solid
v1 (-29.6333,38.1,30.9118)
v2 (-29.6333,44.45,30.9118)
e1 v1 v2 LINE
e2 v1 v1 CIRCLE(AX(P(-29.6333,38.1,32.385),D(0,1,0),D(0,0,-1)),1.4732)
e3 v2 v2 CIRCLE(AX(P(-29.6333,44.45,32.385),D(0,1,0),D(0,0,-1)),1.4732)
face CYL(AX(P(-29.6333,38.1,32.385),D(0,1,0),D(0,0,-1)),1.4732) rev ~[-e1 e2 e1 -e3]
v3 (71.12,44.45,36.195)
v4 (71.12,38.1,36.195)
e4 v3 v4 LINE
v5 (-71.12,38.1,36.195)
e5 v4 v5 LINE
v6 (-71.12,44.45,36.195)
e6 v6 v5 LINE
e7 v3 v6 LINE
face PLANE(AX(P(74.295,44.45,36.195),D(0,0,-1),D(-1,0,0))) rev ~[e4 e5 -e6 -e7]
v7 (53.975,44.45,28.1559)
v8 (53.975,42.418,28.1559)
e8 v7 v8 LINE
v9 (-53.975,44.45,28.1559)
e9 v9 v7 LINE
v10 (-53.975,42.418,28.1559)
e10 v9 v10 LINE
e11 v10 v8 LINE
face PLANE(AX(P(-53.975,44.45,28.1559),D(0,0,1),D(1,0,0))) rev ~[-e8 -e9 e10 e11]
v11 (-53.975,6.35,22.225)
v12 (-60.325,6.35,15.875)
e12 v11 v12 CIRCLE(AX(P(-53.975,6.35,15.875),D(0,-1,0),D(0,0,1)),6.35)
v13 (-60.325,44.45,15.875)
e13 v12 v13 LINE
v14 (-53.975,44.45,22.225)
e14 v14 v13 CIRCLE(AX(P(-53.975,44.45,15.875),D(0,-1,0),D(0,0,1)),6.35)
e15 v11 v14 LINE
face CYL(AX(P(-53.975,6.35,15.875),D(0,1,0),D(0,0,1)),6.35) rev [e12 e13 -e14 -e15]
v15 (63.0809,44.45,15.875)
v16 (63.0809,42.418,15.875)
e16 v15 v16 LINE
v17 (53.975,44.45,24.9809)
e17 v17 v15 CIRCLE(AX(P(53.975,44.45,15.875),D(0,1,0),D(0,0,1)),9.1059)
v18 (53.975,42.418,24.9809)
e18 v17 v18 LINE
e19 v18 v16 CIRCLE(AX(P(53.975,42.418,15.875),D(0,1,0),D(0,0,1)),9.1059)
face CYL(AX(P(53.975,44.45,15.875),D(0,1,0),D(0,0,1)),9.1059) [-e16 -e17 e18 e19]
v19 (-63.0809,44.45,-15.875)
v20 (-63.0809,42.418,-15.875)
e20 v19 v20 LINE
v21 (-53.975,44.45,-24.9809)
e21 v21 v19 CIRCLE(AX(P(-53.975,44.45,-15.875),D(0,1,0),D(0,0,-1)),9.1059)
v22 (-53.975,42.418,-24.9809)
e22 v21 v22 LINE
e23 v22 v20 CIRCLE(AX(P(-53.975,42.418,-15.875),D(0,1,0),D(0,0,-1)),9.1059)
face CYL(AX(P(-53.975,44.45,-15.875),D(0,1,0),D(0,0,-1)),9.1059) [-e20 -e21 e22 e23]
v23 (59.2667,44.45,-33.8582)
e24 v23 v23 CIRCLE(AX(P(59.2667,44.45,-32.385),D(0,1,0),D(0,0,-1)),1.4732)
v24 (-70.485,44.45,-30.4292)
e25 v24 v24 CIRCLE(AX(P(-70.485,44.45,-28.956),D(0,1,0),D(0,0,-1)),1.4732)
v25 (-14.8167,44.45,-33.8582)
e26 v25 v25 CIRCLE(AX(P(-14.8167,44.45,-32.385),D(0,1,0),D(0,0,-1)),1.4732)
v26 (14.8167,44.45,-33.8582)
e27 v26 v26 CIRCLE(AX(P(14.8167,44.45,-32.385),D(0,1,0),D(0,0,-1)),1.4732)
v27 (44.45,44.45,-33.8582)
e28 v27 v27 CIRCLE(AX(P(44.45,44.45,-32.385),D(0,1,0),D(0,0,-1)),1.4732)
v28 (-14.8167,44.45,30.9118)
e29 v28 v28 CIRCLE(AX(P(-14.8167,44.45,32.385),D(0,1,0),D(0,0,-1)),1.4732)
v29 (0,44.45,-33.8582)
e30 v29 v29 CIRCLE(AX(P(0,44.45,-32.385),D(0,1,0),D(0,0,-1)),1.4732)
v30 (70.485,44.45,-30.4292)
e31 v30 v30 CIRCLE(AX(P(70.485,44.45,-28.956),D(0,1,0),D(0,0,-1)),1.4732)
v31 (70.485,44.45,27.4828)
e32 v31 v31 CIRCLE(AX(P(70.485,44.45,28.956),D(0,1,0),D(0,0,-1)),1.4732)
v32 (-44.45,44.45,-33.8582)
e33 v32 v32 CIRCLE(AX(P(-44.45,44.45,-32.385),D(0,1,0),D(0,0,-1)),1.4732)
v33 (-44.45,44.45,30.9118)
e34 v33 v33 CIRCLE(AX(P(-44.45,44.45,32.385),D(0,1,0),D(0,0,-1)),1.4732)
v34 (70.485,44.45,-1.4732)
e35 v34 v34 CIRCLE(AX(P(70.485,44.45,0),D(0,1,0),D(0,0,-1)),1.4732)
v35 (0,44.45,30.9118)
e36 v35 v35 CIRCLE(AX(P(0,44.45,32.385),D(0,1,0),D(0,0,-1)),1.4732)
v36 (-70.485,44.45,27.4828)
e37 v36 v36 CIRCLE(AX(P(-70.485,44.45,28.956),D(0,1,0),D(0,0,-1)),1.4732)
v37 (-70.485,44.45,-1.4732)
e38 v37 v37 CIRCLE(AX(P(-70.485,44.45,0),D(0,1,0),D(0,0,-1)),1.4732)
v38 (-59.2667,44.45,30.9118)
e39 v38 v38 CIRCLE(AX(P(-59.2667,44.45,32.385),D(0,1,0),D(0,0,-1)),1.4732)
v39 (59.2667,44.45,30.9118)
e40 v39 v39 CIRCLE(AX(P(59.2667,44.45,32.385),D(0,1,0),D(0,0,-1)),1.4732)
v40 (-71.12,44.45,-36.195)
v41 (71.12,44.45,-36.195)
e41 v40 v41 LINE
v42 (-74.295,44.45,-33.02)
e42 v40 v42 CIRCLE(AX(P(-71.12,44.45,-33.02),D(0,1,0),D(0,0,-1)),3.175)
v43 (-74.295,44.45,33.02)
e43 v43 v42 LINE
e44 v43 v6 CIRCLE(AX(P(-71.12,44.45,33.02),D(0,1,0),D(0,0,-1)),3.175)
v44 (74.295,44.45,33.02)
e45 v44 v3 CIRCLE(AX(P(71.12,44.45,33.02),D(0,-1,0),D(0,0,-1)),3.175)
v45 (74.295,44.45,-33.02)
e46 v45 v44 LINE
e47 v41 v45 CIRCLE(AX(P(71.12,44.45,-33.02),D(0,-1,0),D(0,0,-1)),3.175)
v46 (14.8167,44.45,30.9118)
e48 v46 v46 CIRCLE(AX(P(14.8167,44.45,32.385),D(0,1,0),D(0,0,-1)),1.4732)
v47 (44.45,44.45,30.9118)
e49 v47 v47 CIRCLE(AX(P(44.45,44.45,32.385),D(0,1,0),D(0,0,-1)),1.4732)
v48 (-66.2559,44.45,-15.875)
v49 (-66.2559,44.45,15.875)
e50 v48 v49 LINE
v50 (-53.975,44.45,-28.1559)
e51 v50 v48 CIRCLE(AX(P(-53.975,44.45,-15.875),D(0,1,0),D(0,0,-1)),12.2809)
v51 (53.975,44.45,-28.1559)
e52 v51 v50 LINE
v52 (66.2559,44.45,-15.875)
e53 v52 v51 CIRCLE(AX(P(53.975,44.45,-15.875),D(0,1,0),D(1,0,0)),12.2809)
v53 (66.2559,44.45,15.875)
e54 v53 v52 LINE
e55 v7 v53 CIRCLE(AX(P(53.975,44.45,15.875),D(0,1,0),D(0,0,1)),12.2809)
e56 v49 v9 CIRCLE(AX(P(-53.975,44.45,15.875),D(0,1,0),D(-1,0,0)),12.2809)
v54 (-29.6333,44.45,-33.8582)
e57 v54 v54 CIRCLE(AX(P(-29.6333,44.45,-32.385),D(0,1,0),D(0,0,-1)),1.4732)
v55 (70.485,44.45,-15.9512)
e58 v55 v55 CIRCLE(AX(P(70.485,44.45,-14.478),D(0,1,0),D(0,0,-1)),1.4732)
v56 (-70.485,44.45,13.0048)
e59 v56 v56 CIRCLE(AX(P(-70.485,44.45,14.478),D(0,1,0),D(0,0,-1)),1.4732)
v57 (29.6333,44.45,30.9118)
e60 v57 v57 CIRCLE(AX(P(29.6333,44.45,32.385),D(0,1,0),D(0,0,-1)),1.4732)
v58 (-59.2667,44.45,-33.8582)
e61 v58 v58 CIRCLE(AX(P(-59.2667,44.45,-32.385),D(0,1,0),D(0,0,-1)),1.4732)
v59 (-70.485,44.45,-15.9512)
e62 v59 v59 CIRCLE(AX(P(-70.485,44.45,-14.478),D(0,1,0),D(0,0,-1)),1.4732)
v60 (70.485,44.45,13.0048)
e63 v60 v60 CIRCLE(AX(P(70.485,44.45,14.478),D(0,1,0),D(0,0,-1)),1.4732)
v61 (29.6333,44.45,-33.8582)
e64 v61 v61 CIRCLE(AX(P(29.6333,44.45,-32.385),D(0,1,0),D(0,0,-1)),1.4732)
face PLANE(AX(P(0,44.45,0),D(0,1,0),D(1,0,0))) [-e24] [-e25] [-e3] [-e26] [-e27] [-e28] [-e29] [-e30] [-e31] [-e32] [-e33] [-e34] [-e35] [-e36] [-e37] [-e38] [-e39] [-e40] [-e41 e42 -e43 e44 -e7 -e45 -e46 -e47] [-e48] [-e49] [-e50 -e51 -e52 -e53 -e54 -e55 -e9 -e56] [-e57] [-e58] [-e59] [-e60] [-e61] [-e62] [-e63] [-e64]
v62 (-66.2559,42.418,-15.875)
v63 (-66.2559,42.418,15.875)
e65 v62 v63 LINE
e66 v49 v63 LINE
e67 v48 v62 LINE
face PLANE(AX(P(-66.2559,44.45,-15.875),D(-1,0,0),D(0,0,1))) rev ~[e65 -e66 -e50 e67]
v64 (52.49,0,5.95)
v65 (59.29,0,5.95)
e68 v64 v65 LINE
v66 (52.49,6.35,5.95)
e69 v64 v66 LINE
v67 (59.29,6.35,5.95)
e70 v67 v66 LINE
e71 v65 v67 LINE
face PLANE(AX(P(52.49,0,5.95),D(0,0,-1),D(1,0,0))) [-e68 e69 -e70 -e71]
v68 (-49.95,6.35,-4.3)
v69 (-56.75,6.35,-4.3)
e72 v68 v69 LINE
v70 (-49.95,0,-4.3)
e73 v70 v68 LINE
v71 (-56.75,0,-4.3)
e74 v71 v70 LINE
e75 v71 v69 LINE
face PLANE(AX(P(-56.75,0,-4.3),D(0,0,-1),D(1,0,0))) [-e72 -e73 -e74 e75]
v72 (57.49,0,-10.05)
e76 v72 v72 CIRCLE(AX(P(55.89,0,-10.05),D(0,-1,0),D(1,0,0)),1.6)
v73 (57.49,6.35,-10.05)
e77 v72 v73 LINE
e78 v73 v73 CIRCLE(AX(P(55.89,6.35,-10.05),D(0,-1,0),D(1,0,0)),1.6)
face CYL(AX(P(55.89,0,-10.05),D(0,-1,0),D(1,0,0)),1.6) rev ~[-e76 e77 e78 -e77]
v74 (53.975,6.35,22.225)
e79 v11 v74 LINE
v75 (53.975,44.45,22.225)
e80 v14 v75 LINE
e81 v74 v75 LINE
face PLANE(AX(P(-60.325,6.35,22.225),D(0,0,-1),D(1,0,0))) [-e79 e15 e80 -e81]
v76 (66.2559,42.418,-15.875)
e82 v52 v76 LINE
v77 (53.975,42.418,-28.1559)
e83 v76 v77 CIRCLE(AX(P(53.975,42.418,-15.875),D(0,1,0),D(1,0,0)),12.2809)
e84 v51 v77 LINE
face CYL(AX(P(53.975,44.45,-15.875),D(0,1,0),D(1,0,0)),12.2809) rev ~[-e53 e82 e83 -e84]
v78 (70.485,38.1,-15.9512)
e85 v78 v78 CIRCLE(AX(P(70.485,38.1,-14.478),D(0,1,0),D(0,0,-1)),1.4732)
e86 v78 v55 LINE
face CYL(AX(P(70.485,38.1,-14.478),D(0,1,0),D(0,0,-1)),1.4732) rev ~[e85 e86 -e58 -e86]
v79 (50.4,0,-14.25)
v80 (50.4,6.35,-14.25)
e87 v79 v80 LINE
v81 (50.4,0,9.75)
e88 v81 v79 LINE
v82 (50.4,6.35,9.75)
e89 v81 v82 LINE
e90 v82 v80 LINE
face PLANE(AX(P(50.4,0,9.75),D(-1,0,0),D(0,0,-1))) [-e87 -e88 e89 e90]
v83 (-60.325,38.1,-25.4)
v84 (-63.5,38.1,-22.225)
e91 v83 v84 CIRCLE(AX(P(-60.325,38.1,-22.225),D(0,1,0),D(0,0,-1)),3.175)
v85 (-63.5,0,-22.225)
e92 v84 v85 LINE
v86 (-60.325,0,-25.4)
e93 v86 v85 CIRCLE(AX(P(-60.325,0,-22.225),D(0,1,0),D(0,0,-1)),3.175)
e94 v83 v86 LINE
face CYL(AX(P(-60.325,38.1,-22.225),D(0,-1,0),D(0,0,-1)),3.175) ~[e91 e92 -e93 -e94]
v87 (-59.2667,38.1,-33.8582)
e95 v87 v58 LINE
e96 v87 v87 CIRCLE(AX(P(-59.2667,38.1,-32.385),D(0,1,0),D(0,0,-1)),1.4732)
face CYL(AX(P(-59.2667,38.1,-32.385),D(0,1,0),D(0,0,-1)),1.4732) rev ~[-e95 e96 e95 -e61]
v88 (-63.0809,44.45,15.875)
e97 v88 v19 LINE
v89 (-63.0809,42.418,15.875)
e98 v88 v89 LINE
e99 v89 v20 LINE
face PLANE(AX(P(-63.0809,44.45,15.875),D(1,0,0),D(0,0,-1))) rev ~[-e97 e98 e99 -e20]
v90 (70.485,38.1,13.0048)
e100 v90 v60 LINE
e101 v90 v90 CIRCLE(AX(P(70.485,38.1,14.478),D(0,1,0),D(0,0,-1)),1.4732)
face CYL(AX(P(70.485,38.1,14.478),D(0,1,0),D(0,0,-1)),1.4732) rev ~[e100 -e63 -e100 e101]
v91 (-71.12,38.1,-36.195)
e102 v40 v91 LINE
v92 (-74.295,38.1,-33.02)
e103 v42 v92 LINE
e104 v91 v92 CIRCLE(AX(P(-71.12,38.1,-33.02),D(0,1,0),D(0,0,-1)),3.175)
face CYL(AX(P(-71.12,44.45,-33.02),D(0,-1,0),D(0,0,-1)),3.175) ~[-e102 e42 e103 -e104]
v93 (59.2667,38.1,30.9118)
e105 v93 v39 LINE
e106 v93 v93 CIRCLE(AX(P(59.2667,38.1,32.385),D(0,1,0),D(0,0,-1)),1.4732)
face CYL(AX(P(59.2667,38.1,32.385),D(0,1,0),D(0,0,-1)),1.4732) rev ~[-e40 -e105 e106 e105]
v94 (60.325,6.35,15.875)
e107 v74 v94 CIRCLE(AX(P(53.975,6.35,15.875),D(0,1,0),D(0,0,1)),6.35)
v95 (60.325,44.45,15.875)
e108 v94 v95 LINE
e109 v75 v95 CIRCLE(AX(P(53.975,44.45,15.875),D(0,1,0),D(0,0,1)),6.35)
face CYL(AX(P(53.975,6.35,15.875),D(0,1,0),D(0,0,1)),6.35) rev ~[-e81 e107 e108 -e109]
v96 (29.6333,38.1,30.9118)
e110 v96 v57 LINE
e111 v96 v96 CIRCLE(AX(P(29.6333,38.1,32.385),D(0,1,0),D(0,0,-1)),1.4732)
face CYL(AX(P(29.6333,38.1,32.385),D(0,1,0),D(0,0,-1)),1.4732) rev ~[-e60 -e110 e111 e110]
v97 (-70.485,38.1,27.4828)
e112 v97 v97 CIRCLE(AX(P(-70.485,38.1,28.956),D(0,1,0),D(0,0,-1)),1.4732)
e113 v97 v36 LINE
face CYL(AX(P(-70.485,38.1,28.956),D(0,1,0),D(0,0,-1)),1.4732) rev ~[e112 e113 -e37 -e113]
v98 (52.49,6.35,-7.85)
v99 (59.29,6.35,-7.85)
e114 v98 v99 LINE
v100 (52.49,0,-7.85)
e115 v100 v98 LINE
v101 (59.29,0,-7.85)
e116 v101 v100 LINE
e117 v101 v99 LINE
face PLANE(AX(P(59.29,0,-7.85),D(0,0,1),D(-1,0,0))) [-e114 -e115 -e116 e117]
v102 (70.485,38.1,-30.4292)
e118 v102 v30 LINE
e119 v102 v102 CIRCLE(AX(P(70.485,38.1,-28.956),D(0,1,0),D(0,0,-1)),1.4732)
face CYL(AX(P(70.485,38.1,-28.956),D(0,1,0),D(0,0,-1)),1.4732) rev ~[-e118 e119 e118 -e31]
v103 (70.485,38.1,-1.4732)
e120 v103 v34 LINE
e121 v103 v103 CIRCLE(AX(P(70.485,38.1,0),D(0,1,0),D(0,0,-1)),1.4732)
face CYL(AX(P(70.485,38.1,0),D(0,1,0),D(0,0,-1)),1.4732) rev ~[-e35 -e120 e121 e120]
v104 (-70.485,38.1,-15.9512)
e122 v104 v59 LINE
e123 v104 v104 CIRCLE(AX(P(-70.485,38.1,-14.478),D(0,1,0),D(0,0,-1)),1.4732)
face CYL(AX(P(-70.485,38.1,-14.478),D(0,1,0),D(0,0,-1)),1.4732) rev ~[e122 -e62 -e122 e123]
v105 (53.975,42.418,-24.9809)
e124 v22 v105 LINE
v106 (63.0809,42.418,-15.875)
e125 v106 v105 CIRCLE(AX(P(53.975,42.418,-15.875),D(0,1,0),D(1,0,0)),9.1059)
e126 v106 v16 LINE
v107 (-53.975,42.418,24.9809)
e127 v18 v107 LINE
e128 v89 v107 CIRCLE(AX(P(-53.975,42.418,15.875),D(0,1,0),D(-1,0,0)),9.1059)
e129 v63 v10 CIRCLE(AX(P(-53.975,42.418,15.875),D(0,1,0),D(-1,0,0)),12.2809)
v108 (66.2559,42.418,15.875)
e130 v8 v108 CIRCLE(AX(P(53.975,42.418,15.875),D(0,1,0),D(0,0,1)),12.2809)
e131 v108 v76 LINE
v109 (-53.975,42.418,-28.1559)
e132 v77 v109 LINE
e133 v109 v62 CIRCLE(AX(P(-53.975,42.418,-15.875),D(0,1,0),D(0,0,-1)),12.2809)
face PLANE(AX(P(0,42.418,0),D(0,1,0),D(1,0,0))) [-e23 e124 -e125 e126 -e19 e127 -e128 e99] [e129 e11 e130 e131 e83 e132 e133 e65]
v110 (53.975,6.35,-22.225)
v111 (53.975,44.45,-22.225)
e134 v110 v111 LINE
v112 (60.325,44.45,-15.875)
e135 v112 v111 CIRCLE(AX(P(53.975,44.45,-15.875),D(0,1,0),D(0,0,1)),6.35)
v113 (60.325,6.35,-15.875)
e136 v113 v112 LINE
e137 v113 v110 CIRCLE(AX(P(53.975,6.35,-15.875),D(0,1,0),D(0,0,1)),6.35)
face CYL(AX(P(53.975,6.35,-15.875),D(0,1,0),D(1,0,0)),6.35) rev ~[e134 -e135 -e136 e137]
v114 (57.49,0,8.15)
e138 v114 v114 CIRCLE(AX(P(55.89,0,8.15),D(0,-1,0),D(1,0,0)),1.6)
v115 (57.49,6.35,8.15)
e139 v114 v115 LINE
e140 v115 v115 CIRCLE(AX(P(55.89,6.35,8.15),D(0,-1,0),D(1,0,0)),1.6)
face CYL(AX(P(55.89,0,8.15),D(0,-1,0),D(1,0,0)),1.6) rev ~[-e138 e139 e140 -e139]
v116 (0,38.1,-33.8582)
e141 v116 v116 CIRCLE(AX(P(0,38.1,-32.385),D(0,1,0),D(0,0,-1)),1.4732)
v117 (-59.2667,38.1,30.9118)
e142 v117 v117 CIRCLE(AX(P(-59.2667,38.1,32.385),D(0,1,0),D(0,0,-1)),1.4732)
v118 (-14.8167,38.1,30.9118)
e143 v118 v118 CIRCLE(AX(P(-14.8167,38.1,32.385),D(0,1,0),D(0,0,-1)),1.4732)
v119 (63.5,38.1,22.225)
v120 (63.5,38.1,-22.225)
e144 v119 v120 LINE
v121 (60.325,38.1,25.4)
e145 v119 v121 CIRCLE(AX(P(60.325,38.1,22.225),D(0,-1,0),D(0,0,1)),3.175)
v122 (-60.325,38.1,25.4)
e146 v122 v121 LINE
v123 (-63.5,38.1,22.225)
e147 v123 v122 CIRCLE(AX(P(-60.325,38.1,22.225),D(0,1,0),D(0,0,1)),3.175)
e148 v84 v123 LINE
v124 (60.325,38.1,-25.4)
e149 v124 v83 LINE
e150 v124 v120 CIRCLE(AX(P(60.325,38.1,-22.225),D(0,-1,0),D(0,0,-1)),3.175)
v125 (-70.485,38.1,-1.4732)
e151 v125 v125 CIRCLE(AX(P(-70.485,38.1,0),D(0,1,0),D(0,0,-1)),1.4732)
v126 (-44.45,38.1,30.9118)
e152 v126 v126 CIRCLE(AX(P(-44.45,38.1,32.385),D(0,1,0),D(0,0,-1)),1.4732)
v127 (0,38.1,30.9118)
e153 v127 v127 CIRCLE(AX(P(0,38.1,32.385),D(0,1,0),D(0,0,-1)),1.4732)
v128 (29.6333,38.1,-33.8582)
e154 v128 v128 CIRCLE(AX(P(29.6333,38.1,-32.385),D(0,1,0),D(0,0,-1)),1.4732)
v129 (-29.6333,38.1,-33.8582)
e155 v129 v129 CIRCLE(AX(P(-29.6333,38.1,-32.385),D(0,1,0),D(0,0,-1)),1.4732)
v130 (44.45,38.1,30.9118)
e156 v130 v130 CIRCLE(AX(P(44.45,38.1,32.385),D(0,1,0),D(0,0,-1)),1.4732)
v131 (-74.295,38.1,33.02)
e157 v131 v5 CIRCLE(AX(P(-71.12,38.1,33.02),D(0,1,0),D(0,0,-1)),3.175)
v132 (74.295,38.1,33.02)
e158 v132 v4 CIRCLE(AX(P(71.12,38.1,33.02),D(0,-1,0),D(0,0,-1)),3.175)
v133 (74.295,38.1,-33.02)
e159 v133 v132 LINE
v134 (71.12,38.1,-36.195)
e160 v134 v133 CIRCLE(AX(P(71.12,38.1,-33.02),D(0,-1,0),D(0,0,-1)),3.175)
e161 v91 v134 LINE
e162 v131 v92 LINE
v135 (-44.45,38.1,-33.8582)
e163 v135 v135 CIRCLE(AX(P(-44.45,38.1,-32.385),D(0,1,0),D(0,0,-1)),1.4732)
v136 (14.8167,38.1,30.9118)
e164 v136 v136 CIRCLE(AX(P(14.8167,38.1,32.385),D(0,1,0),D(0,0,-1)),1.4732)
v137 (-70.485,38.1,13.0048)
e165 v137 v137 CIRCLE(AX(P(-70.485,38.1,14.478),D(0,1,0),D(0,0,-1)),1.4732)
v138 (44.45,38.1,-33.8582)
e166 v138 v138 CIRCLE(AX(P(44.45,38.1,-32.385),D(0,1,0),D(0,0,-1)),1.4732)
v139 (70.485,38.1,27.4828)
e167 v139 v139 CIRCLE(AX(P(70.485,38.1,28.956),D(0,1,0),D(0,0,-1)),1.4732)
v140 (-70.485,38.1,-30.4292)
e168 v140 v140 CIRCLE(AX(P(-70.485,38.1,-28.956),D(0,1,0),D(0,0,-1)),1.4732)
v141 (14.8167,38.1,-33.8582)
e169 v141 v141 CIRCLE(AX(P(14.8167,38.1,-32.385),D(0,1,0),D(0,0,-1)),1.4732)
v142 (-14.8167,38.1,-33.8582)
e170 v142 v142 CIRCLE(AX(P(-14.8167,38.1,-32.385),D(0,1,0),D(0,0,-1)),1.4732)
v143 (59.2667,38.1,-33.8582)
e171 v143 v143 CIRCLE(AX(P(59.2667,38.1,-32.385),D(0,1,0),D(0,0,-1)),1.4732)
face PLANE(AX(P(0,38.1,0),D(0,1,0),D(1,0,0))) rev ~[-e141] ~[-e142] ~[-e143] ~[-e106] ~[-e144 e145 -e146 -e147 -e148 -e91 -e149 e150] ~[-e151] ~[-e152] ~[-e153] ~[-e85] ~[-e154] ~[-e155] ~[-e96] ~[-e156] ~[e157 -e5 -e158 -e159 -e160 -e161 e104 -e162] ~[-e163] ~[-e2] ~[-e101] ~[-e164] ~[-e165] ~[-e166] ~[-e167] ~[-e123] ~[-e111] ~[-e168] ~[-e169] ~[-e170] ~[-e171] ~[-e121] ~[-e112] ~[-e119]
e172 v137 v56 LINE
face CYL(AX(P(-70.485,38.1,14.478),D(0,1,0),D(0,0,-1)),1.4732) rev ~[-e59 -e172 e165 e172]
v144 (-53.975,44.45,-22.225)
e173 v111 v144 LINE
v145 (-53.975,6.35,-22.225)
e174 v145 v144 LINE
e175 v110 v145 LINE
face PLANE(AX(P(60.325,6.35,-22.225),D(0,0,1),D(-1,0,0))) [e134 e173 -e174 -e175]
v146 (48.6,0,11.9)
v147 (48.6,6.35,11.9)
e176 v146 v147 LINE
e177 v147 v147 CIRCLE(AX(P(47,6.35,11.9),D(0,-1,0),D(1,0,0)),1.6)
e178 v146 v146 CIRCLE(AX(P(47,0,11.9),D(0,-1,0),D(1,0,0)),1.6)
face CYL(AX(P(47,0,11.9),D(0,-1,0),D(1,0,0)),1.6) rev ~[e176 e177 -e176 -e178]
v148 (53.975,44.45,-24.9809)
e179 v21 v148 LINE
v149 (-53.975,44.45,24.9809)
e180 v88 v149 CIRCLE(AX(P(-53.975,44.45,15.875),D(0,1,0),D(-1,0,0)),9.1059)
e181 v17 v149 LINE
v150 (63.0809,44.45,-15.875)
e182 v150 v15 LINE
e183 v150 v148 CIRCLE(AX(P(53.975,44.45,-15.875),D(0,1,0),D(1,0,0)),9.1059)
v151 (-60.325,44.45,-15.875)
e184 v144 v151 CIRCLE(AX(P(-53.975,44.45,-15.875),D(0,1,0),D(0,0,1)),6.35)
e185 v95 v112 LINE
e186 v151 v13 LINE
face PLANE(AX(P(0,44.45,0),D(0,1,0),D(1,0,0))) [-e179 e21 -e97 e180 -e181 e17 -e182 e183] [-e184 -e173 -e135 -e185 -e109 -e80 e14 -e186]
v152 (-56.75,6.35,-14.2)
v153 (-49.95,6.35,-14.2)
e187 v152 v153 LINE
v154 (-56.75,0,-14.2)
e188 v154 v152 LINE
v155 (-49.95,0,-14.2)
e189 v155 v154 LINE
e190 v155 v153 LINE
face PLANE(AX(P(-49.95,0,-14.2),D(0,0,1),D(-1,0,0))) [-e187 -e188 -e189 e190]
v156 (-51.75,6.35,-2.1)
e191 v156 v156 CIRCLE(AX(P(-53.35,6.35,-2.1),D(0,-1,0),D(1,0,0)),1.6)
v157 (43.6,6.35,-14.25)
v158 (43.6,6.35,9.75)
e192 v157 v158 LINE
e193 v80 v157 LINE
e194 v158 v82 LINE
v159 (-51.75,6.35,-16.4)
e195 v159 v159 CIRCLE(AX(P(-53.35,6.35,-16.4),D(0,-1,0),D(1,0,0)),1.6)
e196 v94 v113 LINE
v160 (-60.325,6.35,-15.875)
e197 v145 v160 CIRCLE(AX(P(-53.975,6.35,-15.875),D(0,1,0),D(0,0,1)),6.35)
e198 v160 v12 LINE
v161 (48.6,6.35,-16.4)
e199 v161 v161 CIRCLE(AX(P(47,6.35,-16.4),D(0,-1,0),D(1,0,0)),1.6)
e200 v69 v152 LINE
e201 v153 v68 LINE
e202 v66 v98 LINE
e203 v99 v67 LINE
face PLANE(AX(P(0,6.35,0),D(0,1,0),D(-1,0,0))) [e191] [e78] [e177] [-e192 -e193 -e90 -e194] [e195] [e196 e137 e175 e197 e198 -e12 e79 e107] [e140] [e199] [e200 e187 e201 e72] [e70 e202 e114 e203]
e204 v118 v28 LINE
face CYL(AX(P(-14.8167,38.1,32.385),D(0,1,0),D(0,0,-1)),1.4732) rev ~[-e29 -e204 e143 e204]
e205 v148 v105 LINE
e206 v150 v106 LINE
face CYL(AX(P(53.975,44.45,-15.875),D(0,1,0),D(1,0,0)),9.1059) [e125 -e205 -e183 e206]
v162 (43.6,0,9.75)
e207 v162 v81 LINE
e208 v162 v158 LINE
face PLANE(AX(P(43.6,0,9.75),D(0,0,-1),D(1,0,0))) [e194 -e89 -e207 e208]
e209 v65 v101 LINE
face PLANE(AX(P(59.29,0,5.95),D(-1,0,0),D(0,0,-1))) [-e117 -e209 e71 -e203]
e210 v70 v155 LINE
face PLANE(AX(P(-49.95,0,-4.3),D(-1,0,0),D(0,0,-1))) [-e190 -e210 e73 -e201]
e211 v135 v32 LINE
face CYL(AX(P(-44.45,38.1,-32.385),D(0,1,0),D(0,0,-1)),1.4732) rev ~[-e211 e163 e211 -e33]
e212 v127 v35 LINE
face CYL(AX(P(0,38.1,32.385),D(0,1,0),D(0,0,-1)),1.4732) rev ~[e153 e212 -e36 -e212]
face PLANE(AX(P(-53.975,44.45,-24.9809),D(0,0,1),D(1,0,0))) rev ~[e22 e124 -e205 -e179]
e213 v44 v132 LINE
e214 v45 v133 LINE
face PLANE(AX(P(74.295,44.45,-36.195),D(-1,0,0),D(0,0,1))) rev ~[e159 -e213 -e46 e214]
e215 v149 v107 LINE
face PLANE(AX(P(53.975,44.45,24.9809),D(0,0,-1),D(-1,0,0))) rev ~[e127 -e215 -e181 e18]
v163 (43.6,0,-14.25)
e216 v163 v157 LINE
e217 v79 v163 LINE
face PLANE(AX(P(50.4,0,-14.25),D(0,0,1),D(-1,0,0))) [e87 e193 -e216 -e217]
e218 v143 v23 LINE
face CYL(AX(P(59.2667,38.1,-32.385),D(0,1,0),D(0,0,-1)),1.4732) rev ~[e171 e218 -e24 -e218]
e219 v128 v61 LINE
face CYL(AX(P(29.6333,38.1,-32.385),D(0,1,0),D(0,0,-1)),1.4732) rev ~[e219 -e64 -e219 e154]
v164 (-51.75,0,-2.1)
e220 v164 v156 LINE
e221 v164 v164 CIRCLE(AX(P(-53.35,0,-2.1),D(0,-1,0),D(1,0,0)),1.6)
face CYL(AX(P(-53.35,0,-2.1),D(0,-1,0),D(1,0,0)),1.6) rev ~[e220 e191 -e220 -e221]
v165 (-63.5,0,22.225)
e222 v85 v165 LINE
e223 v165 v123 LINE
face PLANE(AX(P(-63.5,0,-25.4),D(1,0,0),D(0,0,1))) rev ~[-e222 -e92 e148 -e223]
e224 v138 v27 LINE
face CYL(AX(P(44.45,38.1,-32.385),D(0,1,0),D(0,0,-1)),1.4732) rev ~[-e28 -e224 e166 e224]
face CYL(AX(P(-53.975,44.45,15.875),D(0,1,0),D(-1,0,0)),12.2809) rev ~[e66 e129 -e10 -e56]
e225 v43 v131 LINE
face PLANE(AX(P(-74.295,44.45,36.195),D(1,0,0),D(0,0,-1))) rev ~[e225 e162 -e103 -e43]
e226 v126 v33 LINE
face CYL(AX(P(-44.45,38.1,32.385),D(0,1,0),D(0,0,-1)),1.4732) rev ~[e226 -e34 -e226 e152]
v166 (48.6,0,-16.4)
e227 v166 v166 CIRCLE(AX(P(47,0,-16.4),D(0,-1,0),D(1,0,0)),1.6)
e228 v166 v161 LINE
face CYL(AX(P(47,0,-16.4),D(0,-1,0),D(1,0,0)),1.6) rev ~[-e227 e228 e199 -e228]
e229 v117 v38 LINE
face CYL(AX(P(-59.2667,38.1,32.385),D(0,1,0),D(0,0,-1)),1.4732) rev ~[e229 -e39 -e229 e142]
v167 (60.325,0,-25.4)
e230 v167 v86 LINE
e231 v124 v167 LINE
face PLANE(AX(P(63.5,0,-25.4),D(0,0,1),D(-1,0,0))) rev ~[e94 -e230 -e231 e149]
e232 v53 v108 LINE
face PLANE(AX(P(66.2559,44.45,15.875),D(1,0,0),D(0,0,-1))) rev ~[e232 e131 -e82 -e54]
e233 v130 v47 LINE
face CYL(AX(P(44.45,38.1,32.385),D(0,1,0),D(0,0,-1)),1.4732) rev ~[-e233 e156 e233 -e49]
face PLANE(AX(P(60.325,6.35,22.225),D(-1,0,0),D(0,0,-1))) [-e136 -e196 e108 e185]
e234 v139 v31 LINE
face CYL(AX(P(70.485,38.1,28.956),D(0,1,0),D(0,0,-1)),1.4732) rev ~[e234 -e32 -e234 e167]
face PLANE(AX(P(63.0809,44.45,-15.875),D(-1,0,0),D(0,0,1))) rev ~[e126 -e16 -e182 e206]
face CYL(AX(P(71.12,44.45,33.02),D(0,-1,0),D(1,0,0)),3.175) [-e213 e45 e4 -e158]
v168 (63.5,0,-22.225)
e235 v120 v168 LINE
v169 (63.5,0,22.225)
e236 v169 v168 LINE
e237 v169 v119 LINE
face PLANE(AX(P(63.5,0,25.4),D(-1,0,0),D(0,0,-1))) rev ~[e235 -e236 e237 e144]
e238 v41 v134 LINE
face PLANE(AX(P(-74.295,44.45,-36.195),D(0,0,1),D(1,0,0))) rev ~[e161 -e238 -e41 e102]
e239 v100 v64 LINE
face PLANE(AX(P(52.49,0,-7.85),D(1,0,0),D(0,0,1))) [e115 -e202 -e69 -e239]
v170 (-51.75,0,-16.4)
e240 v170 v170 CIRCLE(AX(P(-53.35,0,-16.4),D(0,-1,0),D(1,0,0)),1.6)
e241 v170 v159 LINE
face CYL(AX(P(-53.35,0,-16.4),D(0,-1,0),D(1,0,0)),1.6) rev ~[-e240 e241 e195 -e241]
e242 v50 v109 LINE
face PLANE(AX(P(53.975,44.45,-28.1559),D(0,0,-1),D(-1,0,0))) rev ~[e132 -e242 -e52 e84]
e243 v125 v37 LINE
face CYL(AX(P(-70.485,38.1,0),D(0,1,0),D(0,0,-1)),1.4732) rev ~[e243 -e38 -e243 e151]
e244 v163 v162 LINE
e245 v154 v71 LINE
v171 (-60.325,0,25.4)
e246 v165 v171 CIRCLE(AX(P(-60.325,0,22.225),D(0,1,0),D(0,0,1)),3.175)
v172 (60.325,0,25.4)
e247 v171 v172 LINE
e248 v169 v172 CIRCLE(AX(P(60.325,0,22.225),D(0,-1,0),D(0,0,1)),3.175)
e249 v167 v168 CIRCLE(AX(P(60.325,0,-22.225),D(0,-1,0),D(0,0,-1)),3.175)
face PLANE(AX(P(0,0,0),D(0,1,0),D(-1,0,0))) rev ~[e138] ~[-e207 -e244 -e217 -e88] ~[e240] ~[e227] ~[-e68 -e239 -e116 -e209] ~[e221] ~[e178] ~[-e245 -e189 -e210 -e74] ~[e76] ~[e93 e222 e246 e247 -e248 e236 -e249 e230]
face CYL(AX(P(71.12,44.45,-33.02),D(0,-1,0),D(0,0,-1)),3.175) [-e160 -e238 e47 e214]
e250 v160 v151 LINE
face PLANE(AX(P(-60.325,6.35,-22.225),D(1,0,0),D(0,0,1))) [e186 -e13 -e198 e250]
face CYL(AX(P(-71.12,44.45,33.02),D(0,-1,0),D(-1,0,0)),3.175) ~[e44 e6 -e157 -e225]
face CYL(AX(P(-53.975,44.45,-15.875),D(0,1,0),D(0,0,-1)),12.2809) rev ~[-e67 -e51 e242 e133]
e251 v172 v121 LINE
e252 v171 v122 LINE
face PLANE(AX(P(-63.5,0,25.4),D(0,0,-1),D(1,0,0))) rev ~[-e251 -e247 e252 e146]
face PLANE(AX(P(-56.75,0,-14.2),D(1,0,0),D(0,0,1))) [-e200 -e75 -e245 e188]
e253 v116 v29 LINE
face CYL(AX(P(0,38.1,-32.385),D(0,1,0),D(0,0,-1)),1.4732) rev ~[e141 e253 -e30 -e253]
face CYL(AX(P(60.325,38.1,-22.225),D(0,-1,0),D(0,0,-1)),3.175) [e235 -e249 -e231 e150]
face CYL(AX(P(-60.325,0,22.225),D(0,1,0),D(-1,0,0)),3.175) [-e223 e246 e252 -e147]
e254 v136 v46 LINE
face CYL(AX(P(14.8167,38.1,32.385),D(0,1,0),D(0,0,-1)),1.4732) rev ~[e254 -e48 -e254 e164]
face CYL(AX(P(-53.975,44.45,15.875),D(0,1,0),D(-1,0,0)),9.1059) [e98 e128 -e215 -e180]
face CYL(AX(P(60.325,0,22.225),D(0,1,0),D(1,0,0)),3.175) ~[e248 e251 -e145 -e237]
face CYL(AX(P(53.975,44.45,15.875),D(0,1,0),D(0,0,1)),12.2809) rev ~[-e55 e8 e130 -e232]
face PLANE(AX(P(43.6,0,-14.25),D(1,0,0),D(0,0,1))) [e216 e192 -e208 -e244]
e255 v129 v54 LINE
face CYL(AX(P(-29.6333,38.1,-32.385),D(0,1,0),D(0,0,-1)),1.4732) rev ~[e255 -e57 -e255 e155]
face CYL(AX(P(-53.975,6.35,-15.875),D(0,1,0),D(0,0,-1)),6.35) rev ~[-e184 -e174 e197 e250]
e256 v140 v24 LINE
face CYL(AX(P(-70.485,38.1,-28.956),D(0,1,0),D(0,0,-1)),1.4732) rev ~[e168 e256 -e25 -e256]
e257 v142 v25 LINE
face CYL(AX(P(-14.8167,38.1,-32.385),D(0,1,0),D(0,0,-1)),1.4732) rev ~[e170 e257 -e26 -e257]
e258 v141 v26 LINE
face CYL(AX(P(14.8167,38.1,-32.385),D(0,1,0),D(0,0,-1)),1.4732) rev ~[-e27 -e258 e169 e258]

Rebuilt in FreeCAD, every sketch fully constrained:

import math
import FreeCAD as App
import Part
import Sketcher
from FreeCAD import Vector
Q = App.Units.Quantity


def edges_at(feature, points):
    """Names of the edges that pass closest to the given points."""
    edges = feature.Shape.Edges
    near = lambda p: min(range(len(edges)), key=lambda i: edges[i].distToShape(Part.Vertex(*p))[0])
    return sorted({f"Edge{near(p) + 1}" for p in points})


def add_polygon(sketch, points):
    """Adds a closed chain of lines whose ends are joined by coincident constraints."""
    first, n = sketch.GeometryCount, len(points)
    for a, b in zip(points, points[1:] + points[:1]):
        sketch.addGeometry(Part.LineSegment(App.Vector(*a, 0), App.Vector(*b, 0)), False)
    for i in range(n):
        sketch.addConstraint(Sketcher.Constraint("Coincident", first + i, 2, first + (i + 1) % n, 1))

doc = App.newDocument("Part")
body = doc.addObject("PartDesign::Body", "Body")

# Sketch on XZ plane
sketch1 = body.newObject("Sketcher::SketchObject", "Sketch")
sketch1.AttachmentSupport = (doc.getObject("XZ_Plane"), [""])
sketch1.MapMode = "FlatFace"
add_polygon(sketch1, [(-64, -25), (-64, 25), (64, 25), (64, -25)])  # lines 0-3
sketch1.addConstraint(Sketcher.Constraint("Vertical", 0))
sketch1.addConstraint(Sketcher.Constraint("Horizontal", 1))
sketch1.addConstraint(Sketcher.Constraint("Vertical", 2))
sketch1.addConstraint(Sketcher.Constraint("Horizontal", 3))
sketch1.addConstraint(Sketcher.Constraint("Symmetric", 0, 2, 2, 2, -1, 1))
sketch1.addConstraint(Sketcher.Constraint("DistanceX", 1, 1, 1, 2, Q("5 in")))
sketch1.addConstraint(Sketcher.Constraint("DistanceY", 0, 1, 0, 2, Q("2 in")))
pad1 = body.newObject("PartDesign::Pad", "Pad")
pad1.Profile = sketch1
pad1.Length = Q("0.25 in")
pad1.Reversed = True

# Sketch on XZ plane
sketch2 = body.newObject("Sketcher::SketchObject", "Sketch001")
sketch2.AttachmentSupport = (doc.getObject("XZ_Plane"), [""])
sketch2.MapMode = "FlatFace"
sketch2.AttachmentOffset = App.Placement(Vector(0, 0, -0.25 * 25.4), App.Rotation())
add_polygon(sketch2, [(-64, -25), (-64, 25), (64, 25), (64, -25)])  # lines 0-3
add_polygon(sketch2, [(60, 22), (-60, 22), (-60, -22), (60, -22)])  # lines 4-7
sketch2.addConstraint(Sketcher.Constraint("Vertical", 0))
sketch2.addConstraint(Sketcher.Constraint("Horizontal", 1))
sketch2.addConstraint(Sketcher.Constraint("Vertical", 2))
sketch2.addConstraint(Sketcher.Constraint("Horizontal", 3))
sketch2.addConstraint(Sketcher.Constraint("Horizontal", 4))
sketch2.addConstraint(Sketcher.Constraint("Vertical", 5))
sketch2.addConstraint(Sketcher.Constraint("Horizontal", 6))
sketch2.addConstraint(Sketcher.Constraint("Vertical", 7))
sketch2.addConstraint(Sketcher.Constraint("Symmetric", 0, 2, 2, 2, -1, 1))
sketch2.addConstraint(Sketcher.Constraint("Symmetric", 4, 2, 6, 2, -1, 1))
sketch2.addConstraint(Sketcher.Constraint("DistanceX", 1, 1, 1, 2, Q("5 in")))
sketch2.addConstraint(Sketcher.Constraint("DistanceY", 0, 1, 0, 2, Q("2 in")))
sketch2.addConstraint(Sketcher.Constraint("DistanceX", 0, 2, 4, 2, Q("0.125 in")))
sketch2.addConstraint(Sketcher.Constraint("DistanceY", 4, 2, 0, 2, Q("0.125 in")))
pad2 = body.newObject("PartDesign::Pad", "Pad001")
pad2.Profile = sketch2
pad2.Length = Q("1.5 in")
pad2.Reversed = True
doc.recompute()

fillet = body.newObject("PartDesign::Fillet", "Fillet")
fillet.Base = (pad2, edges_at(pad2, [
    (-60.325, 25.4, -22.225),
    (60.325, 25.4, -22.225),
    (60.325, 25.4, 22.225),
    (-60.325, 25.4, 22.225),
]))
fillet.Radius = Q("0.25 in")

# Sketch on XZ plane
sketch3 = body.newObject("Sketcher::SketchObject", "Sketch002")
sketch3.AttachmentSupport = (doc.getObject("XZ_Plane"), [""])
sketch3.MapMode = "FlatFace"
sketch3.AttachmentOffset = App.Placement(Vector(0, 0, -1.75 * 25.4), App.Rotation())
add_polygon(sketch3, [(74, -36), (-74, -36), (-74, 36), (74, 36)])  # lines 0-3
add_polygon(sketch3, [(-64, -25), (64, -25), (64, 25), (-64, 25)])  # lines 4-7
sketch3.addConstraint(Sketcher.Constraint("Horizontal", 0))
sketch3.addConstraint(Sketcher.Constraint("Vertical", 1))
sketch3.addConstraint(Sketcher.Constraint("Horizontal", 2))
sketch3.addConstraint(Sketcher.Constraint("Vertical", 3))
sketch3.addConstraint(Sketcher.Constraint("Horizontal", 4))
sketch3.addConstraint(Sketcher.Constraint("Vertical", 5))
sketch3.addConstraint(Sketcher.Constraint("Horizontal", 6))
sketch3.addConstraint(Sketcher.Constraint("Vertical", 7))
sketch3.addConstraint(Sketcher.Constraint("Symmetric", 0, 2, 2, 2, -1, 1))
sketch3.addConstraint(Sketcher.Constraint("Symmetric", 4, 2, 6, 2, -1, 1))
sketch3.addConstraint(Sketcher.Constraint("DistanceX", 4, 1, 4, 2, Q("5 in")))
sketch3.addConstraint(Sketcher.Constraint("DistanceY", 5, 1, 5, 2, Q("2 in")))
sketch3.addConstraint(Sketcher.Constraint("DistanceX", 4, 2, 3, 2, Q("0.425 in")))
sketch3.addConstraint(Sketcher.Constraint("DistanceY", 3, 2, 4, 2, Q("0.425 in")))
pad3 = body.newObject("PartDesign::Pad", "Pad002")
pad3.Profile = sketch3
pad3.Length = Q("0.25 in")
doc.recompute()

fillet2 = body.newObject("PartDesign::Fillet", "Fillet001")
fillet2.Base = (pad3, edges_at(pad3, [
    (-74.295, 41.275, -36.195),
    (74.295, 41.275, -36.195),
    (74.295, 41.275, 36.195),
    (-74.295, 41.275, 36.195),
]))
fillet2.Radius = Q("0.125 in")

# Sketch on XZ plane
sketch4 = body.newObject("Sketcher::SketchObject", "Sketch003")
sketch4.AttachmentSupport = (doc.getObject("XZ_Plane"), [""])
sketch4.MapMode = "FlatFace"
sketch4.AttachmentOffset = App.Placement(Vector(0, 0, -1.5 * 25.4), App.Rotation())
sketch4.addGeometry(Part.Circle(Vector(59.3, 32.4, 0), Vector(0, 0, 1), 1.5), False)
sketch4.addGeometry(Part.Circle(Vector(44.5, 32.4, 0), Vector(0, 0, 1), 1.5), False)
sketch4.addGeometry(Part.Circle(Vector(29.6, 32.4, 0), Vector(0, 0, 1), 1.5), False)
sketch4.addGeometry(Part.Circle(Vector(14.8, 32.4, 0), Vector(0, 0, 1), 1.5), False)
sketch4.addGeometry(Part.Circle(Vector(0, 32.4, 0), Vector(0, 0, 1), 1.5), False)
sketch4.addGeometry(Part.Circle(Vector(-14.8, 32.4, 0), Vector(0, 0, 1), 1.5), False)
sketch4.addGeometry(Part.Circle(Vector(-29.6, 32.4, 0), Vector(0, 0, 1), 1.5), False)
sketch4.addGeometry(Part.Circle(Vector(-44.5, 32.4, 0), Vector(0, 0, 1), 1.5), False)
sketch4.addGeometry(Part.Circle(Vector(-59.3, 32.4, 0), Vector(0, 0, 1), 1.5), False)
sketch4.addGeometry(Part.Circle(Vector(-59.3, -32.4, 0), Vector(0, 0, 1), 1.5), False)
sketch4.addGeometry(Part.Circle(Vector(-44.5, -32.4, 0), Vector(0, 0, 1), 1.5), False)
sketch4.addGeometry(Part.Circle(Vector(-29.6, -32.4, 0), Vector(0, 0, 1), 1.5), False)
sketch4.addGeometry(Part.Circle(Vector(-14.8, -32.4, 0), Vector(0, 0, 1), 1.5), False)
sketch4.addGeometry(Part.Circle(Vector(0, -32.4, 0), Vector(0, 0, 1), 1.5), False)
sketch4.addGeometry(Part.Circle(Vector(14.8, -32.4, 0), Vector(0, 0, 1), 1.5), False)
sketch4.addGeometry(Part.Circle(Vector(29.6, -32.4, 0), Vector(0, 0, 1), 1.5), False)
sketch4.addGeometry(Part.Circle(Vector(44.5, -32.4, 0), Vector(0, 0, 1), 1.5), False)
sketch4.addGeometry(Part.Circle(Vector(59.3, -32.4, 0), Vector(0, 0, 1), 1.5), False)
sketch4.addGeometry(Part.Circle(Vector(70.5, -29, 0), Vector(0, 0, 1), 1.5), False)
sketch4.addGeometry(Part.Circle(Vector(70.5, -14.5, 0), Vector(0, 0, 1), 1.5), False)
sketch4.addGeometry(Part.Circle(Vector(70.5, 0, 0), Vector(0, 0, 1), 1.5), False)
sketch4.addGeometry(Part.Circle(Vector(70.5, 14.5, 0), Vector(0, 0, 1), 1.5), False)
sketch4.addGeometry(Part.Circle(Vector(70.5, 29, 0), Vector(0, 0, 1), 1.5), False)
sketch4.addGeometry(Part.Circle(Vector(-70.5, 29, 0), Vector(0, 0, 1), 1.5), False)
sketch4.addGeometry(Part.Circle(Vector(-70.5, 14.5, 0), Vector(0, 0, 1), 1.5), False)
sketch4.addGeometry(Part.Circle(Vector(-70.5, 0, 0), Vector(0, 0, 1), 1.5), False)
sketch4.addGeometry(Part.Circle(Vector(-70.5, -14.5, 0), Vector(0, 0, 1), 1.5), False)
sketch4.addGeometry(Part.Circle(Vector(-70.5, -29, 0), Vector(0, 0, 1), 1.5), False)
sketch4.addConstraint(Sketcher.Constraint("Equal", 0, 1))
sketch4.addConstraint(Sketcher.Constraint("Equal", 1, 2))
sketch4.addConstraint(Sketcher.Constraint("Equal", 2, 3))
sketch4.addConstraint(Sketcher.Constraint("Equal", 3, 4))
sketch4.addConstraint(Sketcher.Constraint("Equal", 4, 5))
sketch4.addConstraint(Sketcher.Constraint("Equal", 5, 6))
sketch4.addConstraint(Sketcher.Constraint("Equal", 6, 7))
sketch4.addConstraint(Sketcher.Constraint("Equal", 7, 8))
sketch4.addConstraint(Sketcher.Constraint("Equal", 8, 9))
sketch4.addConstraint(Sketcher.Constraint("Equal", 9, 10))
sketch4.addConstraint(Sketcher.Constraint("Equal", 10, 11))
sketch4.addConstraint(Sketcher.Constraint("Equal", 11, 12))
sketch4.addConstraint(Sketcher.Constraint("Equal", 12, 13))
sketch4.addConstraint(Sketcher.Constraint("Equal", 13, 14))
sketch4.addConstraint(Sketcher.Constraint("Equal", 14, 15))
sketch4.addConstraint(Sketcher.Constraint("Equal", 15, 16))
sketch4.addConstraint(Sketcher.Constraint("Equal", 16, 17))
sketch4.addConstraint(Sketcher.Constraint("Equal", 17, 18))
sketch4.addConstraint(Sketcher.Constraint("Equal", 18, 19))
sketch4.addConstraint(Sketcher.Constraint("Equal", 19, 20))
sketch4.addConstraint(Sketcher.Constraint("Equal", 20, 21))
sketch4.addConstraint(Sketcher.Constraint("Equal", 21, 22))
sketch4.addConstraint(Sketcher.Constraint("Equal", 22, 23))
sketch4.addConstraint(Sketcher.Constraint("Equal", 23, 24))
sketch4.addConstraint(Sketcher.Constraint("Equal", 24, 25))
sketch4.addConstraint(Sketcher.Constraint("Equal", 25, 26))
sketch4.addConstraint(Sketcher.Constraint("Equal", 26, 27))
sketch4.addConstraint(Sketcher.Constraint("Symmetric", 0, 3, 9, 3, -1, 1))
sketch4.addConstraint(Sketcher.Constraint("Symmetric", 1, 3, 10, 3, -1, 1))
sketch4.addConstraint(Sketcher.Constraint("Symmetric", 2, 3, 11, 3, -1, 1))
sketch4.addConstraint(Sketcher.Constraint("Symmetric", 3, 3, 12, 3, -1, 1))
sketch4.addConstraint(Sketcher.Constraint("Symmetric", 4, 3, 13, 3, -1, 1))
sketch4.addConstraint(Sketcher.Constraint("Symmetric", 5, 3, 14, 3, -1, 1))
sketch4.addConstraint(Sketcher.Constraint("Symmetric", 6, 3, 15, 3, -1, 1))
sketch4.addConstraint(Sketcher.Constraint("Symmetric", 7, 3, 16, 3, -1, 1))
sketch4.addConstraint(Sketcher.Constraint("Symmetric", 8, 3, 17, 3, -1, 1))
sketch4.addConstraint(Sketcher.Constraint("Symmetric", 18, 3, 23, 3, -1, 1))
sketch4.addConstraint(Sketcher.Constraint("Symmetric", 19, 3, 24, 3, -1, 1))
sketch4.addConstraint(Sketcher.Constraint("Symmetric", 20, 3, 25, 3, -1, 1))
sketch4.addConstraint(Sketcher.Constraint("Symmetric", 21, 3, 26, 3, -1, 1))
sketch4.addConstraint(Sketcher.Constraint("Symmetric", 22, 3, 27, 3, -1, 1))
sketch4.addConstraint(Sketcher.Constraint("Symmetric", 3, 3, 5, 3, -2))
sketch4.addConstraint(Sketcher.Constraint("Symmetric", 2, 3, 6, 3, -2))
sketch4.addConstraint(Sketcher.Constraint("Symmetric", 1, 3, 7, 3, -2))
sketch4.addConstraint(Sketcher.Constraint("Symmetric", 0, 3, 8, 3, -2))
sketch4.addConstraint(Sketcher.Constraint("Symmetric", 22, 3, 23, 3, -2))
sketch4.addConstraint(Sketcher.Constraint("Symmetric", 21, 3, 24, 3, -2))
sketch4.addConstraint(Sketcher.Constraint("PointOnObject", 4, 3, -2))
sketch4.addConstraint(Sketcher.Constraint("PointOnObject", 20, 3, -1))
sketch4.addConstraint(Sketcher.Constraint("Horizontal", 0, 3, 1, 3))
sketch4.addConstraint(Sketcher.Constraint("Horizontal", 1, 3, 2, 3))
sketch4.addConstraint(Sketcher.Constraint("Horizontal", 2, 3, 3, 3))
sketch4.addConstraint(Sketcher.Constraint("Horizontal", 3, 3, 4, 3))
sketch4.addConstraint(Sketcher.Constraint("Vertical", 18, 3, 19, 3))
sketch4.addConstraint(Sketcher.Constraint("Vertical", 19, 3, 20, 3))
sketch4.addConstraint(Sketcher.Constraint("Diameter", 0, Q("0.116 in")))
sketch4.addConstraint(Sketcher.Constraint("DistanceX", -1, 1, 1, 3, Q("1.75 in")))
sketch4.addConstraint(Sketcher.Constraint("DistanceY", 18, 3, -1, 1, Q("1.14 in")))
sketch4.addConstraint(Sketcher.Constraint("DistanceY", 19, 3, -1, 1, Q("0.57 in")))
sketch4.addConstraint(Sketcher.Constraint("DistanceX", 3, 3, 0, 3, Q("1.75 in")))
sketch4.addConstraint(Sketcher.Constraint("DistanceX", 5, 3, 2, 3, Q("1.75 in")))
sketch4.addConstraint(Sketcher.Constraint("DistanceY", 9, 3, 8, 3, Q("2.55 in")))
sketch4.addConstraint(Sketcher.Constraint("DistanceX", -1, 1, 18, 3, Q("2.775 in")))
sketch4.addConstraint(Sketcher.Constraint("DistanceX", -1, 1, 0, 3, 59.2667))
doc.recompute()
hole = body.newObject("PartDesign::Hole", "Hole")
hole.Profile = sketch4
hole.ThreadType = "None"
hole.Diameter = Q("0.116 in")
hole.DepthType = "Dimension"
hole.Depth = Q("1 in")
hole.DrillPoint = "Angled"
hole.DrillPointAngle = 118

# Sketch on XZ plane
sketch5 = body.newObject("Sketcher::SketchObject", "Sketch004")
sketch5.AttachmentSupport = (doc.getObject("XZ_Plane"), [""])
sketch5.MapMode = "FlatFace"
add_polygon(sketch5, [(44, -14), (50, -14), (50, 10), (44, 10)])  # lines 0-3
sketch5.addConstraint(Sketcher.Constraint("Horizontal", 0))
sketch5.addConstraint(Sketcher.Constraint("Vertical", 1))
sketch5.addConstraint(Sketcher.Constraint("Horizontal", 2))
sketch5.addConstraint(Sketcher.Constraint("Vertical", 3))
sketch5.addConstraint(Sketcher.Constraint("DistanceX", 0, 1, 0, 2, 6.8))
sketch5.addConstraint(Sketcher.Constraint("DistanceY", 1, 1, 1, 2, 24.0))
sketch5.addConstraint(Sketcher.Constraint("DistanceX", -1, 1, 0, 2, 50.4))
sketch5.addConstraint(Sketcher.Constraint("DistanceY", 0, 2, -1, 1, 14.25))
pocket1 = body.newObject("PartDesign::Pocket", "Pocket")
pocket1.Profile = sketch5
pocket1.Length = Q("0.25 in")

# Sketch on XZ plane
sketch6 = body.newObject("Sketcher::SketchObject", "Sketch005")
sketch6.AttachmentSupport = (doc.getObject("XZ_Plane"), [""])
sketch6.MapMode = "FlatFace"
add_polygon(sketch6, [(52, -8), (59, -8), (59, 6), (52, 6)])  # lines 0-3
add_polygon(sketch6, [(-50, -4), (-57, -4), (-57, -14), (-50, -14)])  # lines 4-7
sketch6.addConstraint(Sketcher.Constraint("Horizontal", 0))
sketch6.addConstraint(Sketcher.Constraint("Vertical", 1))
sketch6.addConstraint(Sketcher.Constraint("Horizontal", 2))
sketch6.addConstraint(Sketcher.Constraint("Vertical", 3))
sketch6.addConstraint(Sketcher.Constraint("Horizontal", 4))
sketch6.addConstraint(Sketcher.Constraint("Vertical", 5))
sketch6.addConstraint(Sketcher.Constraint("Horizontal", 6))
sketch6.addConstraint(Sketcher.Constraint("Vertical", 7))
sketch6.addConstraint(Sketcher.Constraint("Equal", 2, 4))
sketch6.addConstraint(Sketcher.Constraint("DistanceY", 5, 2, 3, 2, Q("0.25 in")))
sketch6.addConstraint(Sketcher.Constraint("DistanceY", 1, 1, 1, 2, Q("0.5433 in")))
sketch6.addConstraint(Sketcher.Constraint("DistanceX", 0, 1, 0, 2, 6.8))
sketch6.addConstraint(Sketcher.Constraint("DistanceY", 5, 2, 5, 1, 9.9))
sketch6.addConstraint(Sketcher.Constraint("DistanceY", 4, 2, -1, 1, Q("0.1693 in")))
sketch6.addConstraint(Sketcher.Constraint("DistanceX", 4, 2, 0, 2, Q("4.5685 in")))
sketch6.addConstraint(Sketcher.Constraint("DistanceX", -1, 1, 0, 2, 59.29))
pocket2 = body.newObject("PartDesign::Pocket", "Pocket001")
pocket2.Profile = sketch6
pocket2.Type = "ThroughAll"

# Sketch on XZ plane
sketch7 = body.newObject("Sketcher::SketchObject", "Sketch006")
sketch7.AttachmentSupport = (doc.getObject("XZ_Plane"), [""])
sketch7.MapMode = "FlatFace"
sketch7.addGeometry(Part.Circle(Vector(55.9, 8.2, 0), Vector(0, 0, 1), 1.6), False)
sketch7.addGeometry(Part.Circle(Vector(55.9, -10.1, 0), Vector(0, 0, 1), 1.6), False)
sketch7.addGeometry(Part.Circle(Vector(-53.4, -2.1, 0), Vector(0, 0, 1), 1.6), False)
sketch7.addGeometry(Part.Circle(Vector(-53.4, -16.4, 0), Vector(0, 0, 1), 1.6), False)
sketch7.addGeometry(Part.Circle(Vector(47, -16.4, 0), Vector(0, 0, 1), 1.6), False)
sketch7.addGeometry(Part.Circle(Vector(47, 11.9, 0), Vector(0, 0, 1), 1.6), False)
sketch7.addConstraint(Sketcher.Constraint("Equal", 0, 1))
sketch7.addConstraint(Sketcher.Constraint("Equal", 1, 2))
sketch7.addConstraint(Sketcher.Constraint("Equal", 2, 3))
sketch7.addConstraint(Sketcher.Constraint("Equal", 3, 4))
sketch7.addConstraint(Sketcher.Constraint("Equal", 4, 5))
sketch7.addConstraint(Sketcher.Constraint("Horizontal", 3, 3, 4, 3))
sketch7.addConstraint(Sketcher.Constraint("Vertical", 0, 3, 1, 3))
sketch7.addConstraint(Sketcher.Constraint("Vertical", 2, 3, 3, 3))
sketch7.addConstraint(Sketcher.Constraint("Vertical", 4, 3, 5, 3))
sketch7.addConstraint(Sketcher.Constraint("Diameter", 0, 3.2))
sketch7.addConstraint(Sketcher.Constraint("DistanceY", 3, 3, 1, 3, Q("0.25 in")))
sketch7.addConstraint(Sketcher.Constraint("DistanceX", 4, 3, 1, 3, Q("0.35 in")))
sketch7.addConstraint(Sketcher.Constraint("DistanceY", 1, 3, 2, 3, Q("0.313 in")))
sketch7.addConstraint(Sketcher.Constraint("DistanceX", -1, 1, 0, 3, Q("2.2004 in")))
sketch7.addConstraint(Sketcher.Constraint("DistanceX", 2, 3, -1, 1, Q("2.1004 in")))
sketch7.addConstraint(Sketcher.Constraint("DistanceY", -1, 1, 5, 3, Q("0.4685 in")))
sketch7.addConstraint(Sketcher.Constraint("DistanceY", -1, 1, 0, 3, 8.15))
sketch7.addConstraint(Sketcher.Constraint("DistanceY", 1, 3, -1, 1, 10.05))
pocket3 = body.newObject("PartDesign::Pocket", "Pocket002")
pocket3.Profile = sketch7
pocket3.Type = "ThroughAll"

# Sketch on XZ plane
sketch8 = body.newObject("Sketcher::SketchObject", "Sketch007")
sketch8.AttachmentSupport = (doc.getObject("XZ_Plane"), [""])
sketch8.MapMode = "FlatFace"
sketch8.AttachmentOffset = App.Placement(Vector(0, 0, -1.75 * 25.4), App.Rotation())
sketch8.addGeometry(Part.ArcOfCircle(Part.Circle(Vector(54, -16, 0), Vector(0, 0, 1), 12), math.radians(-90), math.radians(0)), False)
sketch8.addGeometry(Part.LineSegment(Vector(54, -28, 0), Vector(-54, -28, 0)), False)
sketch8.addGeometry(Part.ArcOfCircle(Part.Circle(Vector(-54, -16, 0), Vector(0, 0, 1), 12), math.radians(180), math.radians(270)), False)
sketch8.addGeometry(Part.LineSegment(Vector(-66, -16, 0), Vector(-66, 16, 0)), False)
sketch8.addGeometry(Part.ArcOfCircle(Part.Circle(Vector(-54, 16, 0), Vector(0, 0, 1), 12), math.radians(90), math.radians(180)), False)
sketch8.addGeometry(Part.LineSegment(Vector(-54, 28, 0), Vector(54, 28, 0)), False)
sketch8.addGeometry(Part.ArcOfCircle(Part.Circle(Vector(54, 16, 0), Vector(0, 0, 1), 12), math.radians(0), math.radians(90)), False)
sketch8.addGeometry(Part.LineSegment(Vector(66, 16, 0), Vector(66, -16, 0)), False)
sketch8.addGeometry(Part.ArcOfCircle(Part.Circle(Vector(-54, -16, 0), Vector(0, 0, 1), 9), math.radians(180), math.radians(270)), False)
sketch8.addGeometry(Part.LineSegment(Vector(-54, -25, 0), Vector(54, -25, 0)), False)
sketch8.addGeometry(Part.ArcOfCircle(Part.Circle(Vector(54, -16, 0), Vector(0, 0, 1), 9), math.radians(-90), math.radians(0)), False)
sketch8.addGeometry(Part.LineSegment(Vector(63, -16, 0), Vector(63, 16, 0)), False)
sketch8.addGeometry(Part.ArcOfCircle(Part.Circle(Vector(54, 16, 0), Vector(0, 0, 1), 9), math.radians(0), math.radians(90)), False)
sketch8.addGeometry(Part.LineSegment(Vector(54, 25, 0), Vector(-54, 25, 0)), False)
sketch8.addGeometry(Part.ArcOfCircle(Part.Circle(Vector(-54, 16, 0), Vector(0, 0, 1), 9), math.radians(90), math.radians(180)), False)
sketch8.addGeometry(Part.LineSegment(Vector(-63, 16, 0), Vector(-63, -16, 0)), False)
sketch8.addConstraint(Sketcher.Constraint("Tangent", 0, 1, 1, 1))
sketch8.addConstraint(Sketcher.Constraint("Tangent", 1, 2, 2, 2))
sketch8.addConstraint(Sketcher.Constraint("Tangent", 2, 1, 3, 1))
sketch8.addConstraint(Sketcher.Constraint("Tangent", 3, 2, 4, 2))
sketch8.addConstraint(Sketcher.Constraint("Tangent", 4, 1, 5, 1))
sketch8.addConstraint(Sketcher.Constraint("Tangent", 5, 2, 6, 2))
sketch8.addConstraint(Sketcher.Constraint("Tangent", 6, 1, 7, 1))
sketch8.addConstraint(Sketcher.Constraint("Tangent", 7, 2, 0, 2))
sketch8.addConstraint(Sketcher.Constraint("Tangent", 8, 2, 9, 1))
sketch8.addConstraint(Sketcher.Constraint("Tangent", 9, 2, 10, 1))
sketch8.addConstraint(Sketcher.Constraint("Tangent", 10, 2, 11, 1))
sketch8.addConstraint(Sketcher.Constraint("Tangent", 11, 2, 12, 1))
sketch8.addConstraint(Sketcher.Constraint("Tangent", 12, 2, 13, 1))
sketch8.addConstraint(Sketcher.Constraint("Tangent", 13, 2, 14, 1))
sketch8.addConstraint(Sketcher.Constraint("Tangent", 14, 2, 15, 1))
sketch8.addConstraint(Sketcher.Constraint("Tangent", 15, 2, 8, 1))
sketch8.addConstraint(Sketcher.Constraint("Horizontal", 1))
sketch8.addConstraint(Sketcher.Constraint("Vertical", 3))
sketch8.addConstraint(Sketcher.Constraint("Horizontal", 5))
sketch8.addConstraint(Sketcher.Constraint("Vertical", 7))
sketch8.addConstraint(Sketcher.Constraint("Horizontal", 9))
sketch8.addConstraint(Sketcher.Constraint("Vertical", 11))
sketch8.addConstraint(Sketcher.Constraint("Horizontal", 13))
sketch8.addConstraint(Sketcher.Constraint("Vertical", 15))
sketch8.addConstraint(Sketcher.Constraint("Coincident", 8, 3, 2, 3))
sketch8.addConstraint(Sketcher.Constraint("Coincident", 10, 3, 0, 3))
sketch8.addConstraint(Sketcher.Constraint("Coincident", 12, 3, 6, 3))
sketch8.addConstraint(Sketcher.Constraint("Equal", 0, 2))
sketch8.addConstraint(Sketcher.Constraint("Equal", 2, 4))
sketch8.addConstraint(Sketcher.Constraint("Equal", 4, 6))
sketch8.addConstraint(Sketcher.Constraint("Equal", 12, 14))
sketch8.addConstraint(Sketcher.Constraint("Symmetric", 0, 3, 4, 3, -1, 1))
sketch8.addConstraint(Sketcher.Constraint("DistanceY", 1, 2, 8, 2, Q("0.125 in")))
sketch8.addConstraint(Sketcher.Constraint("DistanceX", 1, 2, 1, 1, Q("4.25 in")))
sketch8.addConstraint(Sketcher.Constraint("DistanceY", 3, 1, 3, 2, Q("1.25 in")))
sketch8.addConstraint(Sketcher.Constraint("Radius", 0, Q("0.4835 in")))
pocket4 = body.newObject("PartDesign::Pocket", "Pocket003")
pocket4.Profile = sketch8
pocket4.Length = Q("0.08 in")
pocket4.Reversed = True
doc.recompute()

fillet3 = body.newObject("PartDesign::Fillet", "Fillet002")
fillet3.Base = (pocket4, edges_at(pocket4, [
    (-63.5, 19.05, -25.4),
    (63.5, 19.05, -25.4),
    (63.5, 19.05, 25.4),
    (-63.5, 19.05, 25.4),
]))
fillet3.Radius = Q("0.125 in")

doc.recompute()
